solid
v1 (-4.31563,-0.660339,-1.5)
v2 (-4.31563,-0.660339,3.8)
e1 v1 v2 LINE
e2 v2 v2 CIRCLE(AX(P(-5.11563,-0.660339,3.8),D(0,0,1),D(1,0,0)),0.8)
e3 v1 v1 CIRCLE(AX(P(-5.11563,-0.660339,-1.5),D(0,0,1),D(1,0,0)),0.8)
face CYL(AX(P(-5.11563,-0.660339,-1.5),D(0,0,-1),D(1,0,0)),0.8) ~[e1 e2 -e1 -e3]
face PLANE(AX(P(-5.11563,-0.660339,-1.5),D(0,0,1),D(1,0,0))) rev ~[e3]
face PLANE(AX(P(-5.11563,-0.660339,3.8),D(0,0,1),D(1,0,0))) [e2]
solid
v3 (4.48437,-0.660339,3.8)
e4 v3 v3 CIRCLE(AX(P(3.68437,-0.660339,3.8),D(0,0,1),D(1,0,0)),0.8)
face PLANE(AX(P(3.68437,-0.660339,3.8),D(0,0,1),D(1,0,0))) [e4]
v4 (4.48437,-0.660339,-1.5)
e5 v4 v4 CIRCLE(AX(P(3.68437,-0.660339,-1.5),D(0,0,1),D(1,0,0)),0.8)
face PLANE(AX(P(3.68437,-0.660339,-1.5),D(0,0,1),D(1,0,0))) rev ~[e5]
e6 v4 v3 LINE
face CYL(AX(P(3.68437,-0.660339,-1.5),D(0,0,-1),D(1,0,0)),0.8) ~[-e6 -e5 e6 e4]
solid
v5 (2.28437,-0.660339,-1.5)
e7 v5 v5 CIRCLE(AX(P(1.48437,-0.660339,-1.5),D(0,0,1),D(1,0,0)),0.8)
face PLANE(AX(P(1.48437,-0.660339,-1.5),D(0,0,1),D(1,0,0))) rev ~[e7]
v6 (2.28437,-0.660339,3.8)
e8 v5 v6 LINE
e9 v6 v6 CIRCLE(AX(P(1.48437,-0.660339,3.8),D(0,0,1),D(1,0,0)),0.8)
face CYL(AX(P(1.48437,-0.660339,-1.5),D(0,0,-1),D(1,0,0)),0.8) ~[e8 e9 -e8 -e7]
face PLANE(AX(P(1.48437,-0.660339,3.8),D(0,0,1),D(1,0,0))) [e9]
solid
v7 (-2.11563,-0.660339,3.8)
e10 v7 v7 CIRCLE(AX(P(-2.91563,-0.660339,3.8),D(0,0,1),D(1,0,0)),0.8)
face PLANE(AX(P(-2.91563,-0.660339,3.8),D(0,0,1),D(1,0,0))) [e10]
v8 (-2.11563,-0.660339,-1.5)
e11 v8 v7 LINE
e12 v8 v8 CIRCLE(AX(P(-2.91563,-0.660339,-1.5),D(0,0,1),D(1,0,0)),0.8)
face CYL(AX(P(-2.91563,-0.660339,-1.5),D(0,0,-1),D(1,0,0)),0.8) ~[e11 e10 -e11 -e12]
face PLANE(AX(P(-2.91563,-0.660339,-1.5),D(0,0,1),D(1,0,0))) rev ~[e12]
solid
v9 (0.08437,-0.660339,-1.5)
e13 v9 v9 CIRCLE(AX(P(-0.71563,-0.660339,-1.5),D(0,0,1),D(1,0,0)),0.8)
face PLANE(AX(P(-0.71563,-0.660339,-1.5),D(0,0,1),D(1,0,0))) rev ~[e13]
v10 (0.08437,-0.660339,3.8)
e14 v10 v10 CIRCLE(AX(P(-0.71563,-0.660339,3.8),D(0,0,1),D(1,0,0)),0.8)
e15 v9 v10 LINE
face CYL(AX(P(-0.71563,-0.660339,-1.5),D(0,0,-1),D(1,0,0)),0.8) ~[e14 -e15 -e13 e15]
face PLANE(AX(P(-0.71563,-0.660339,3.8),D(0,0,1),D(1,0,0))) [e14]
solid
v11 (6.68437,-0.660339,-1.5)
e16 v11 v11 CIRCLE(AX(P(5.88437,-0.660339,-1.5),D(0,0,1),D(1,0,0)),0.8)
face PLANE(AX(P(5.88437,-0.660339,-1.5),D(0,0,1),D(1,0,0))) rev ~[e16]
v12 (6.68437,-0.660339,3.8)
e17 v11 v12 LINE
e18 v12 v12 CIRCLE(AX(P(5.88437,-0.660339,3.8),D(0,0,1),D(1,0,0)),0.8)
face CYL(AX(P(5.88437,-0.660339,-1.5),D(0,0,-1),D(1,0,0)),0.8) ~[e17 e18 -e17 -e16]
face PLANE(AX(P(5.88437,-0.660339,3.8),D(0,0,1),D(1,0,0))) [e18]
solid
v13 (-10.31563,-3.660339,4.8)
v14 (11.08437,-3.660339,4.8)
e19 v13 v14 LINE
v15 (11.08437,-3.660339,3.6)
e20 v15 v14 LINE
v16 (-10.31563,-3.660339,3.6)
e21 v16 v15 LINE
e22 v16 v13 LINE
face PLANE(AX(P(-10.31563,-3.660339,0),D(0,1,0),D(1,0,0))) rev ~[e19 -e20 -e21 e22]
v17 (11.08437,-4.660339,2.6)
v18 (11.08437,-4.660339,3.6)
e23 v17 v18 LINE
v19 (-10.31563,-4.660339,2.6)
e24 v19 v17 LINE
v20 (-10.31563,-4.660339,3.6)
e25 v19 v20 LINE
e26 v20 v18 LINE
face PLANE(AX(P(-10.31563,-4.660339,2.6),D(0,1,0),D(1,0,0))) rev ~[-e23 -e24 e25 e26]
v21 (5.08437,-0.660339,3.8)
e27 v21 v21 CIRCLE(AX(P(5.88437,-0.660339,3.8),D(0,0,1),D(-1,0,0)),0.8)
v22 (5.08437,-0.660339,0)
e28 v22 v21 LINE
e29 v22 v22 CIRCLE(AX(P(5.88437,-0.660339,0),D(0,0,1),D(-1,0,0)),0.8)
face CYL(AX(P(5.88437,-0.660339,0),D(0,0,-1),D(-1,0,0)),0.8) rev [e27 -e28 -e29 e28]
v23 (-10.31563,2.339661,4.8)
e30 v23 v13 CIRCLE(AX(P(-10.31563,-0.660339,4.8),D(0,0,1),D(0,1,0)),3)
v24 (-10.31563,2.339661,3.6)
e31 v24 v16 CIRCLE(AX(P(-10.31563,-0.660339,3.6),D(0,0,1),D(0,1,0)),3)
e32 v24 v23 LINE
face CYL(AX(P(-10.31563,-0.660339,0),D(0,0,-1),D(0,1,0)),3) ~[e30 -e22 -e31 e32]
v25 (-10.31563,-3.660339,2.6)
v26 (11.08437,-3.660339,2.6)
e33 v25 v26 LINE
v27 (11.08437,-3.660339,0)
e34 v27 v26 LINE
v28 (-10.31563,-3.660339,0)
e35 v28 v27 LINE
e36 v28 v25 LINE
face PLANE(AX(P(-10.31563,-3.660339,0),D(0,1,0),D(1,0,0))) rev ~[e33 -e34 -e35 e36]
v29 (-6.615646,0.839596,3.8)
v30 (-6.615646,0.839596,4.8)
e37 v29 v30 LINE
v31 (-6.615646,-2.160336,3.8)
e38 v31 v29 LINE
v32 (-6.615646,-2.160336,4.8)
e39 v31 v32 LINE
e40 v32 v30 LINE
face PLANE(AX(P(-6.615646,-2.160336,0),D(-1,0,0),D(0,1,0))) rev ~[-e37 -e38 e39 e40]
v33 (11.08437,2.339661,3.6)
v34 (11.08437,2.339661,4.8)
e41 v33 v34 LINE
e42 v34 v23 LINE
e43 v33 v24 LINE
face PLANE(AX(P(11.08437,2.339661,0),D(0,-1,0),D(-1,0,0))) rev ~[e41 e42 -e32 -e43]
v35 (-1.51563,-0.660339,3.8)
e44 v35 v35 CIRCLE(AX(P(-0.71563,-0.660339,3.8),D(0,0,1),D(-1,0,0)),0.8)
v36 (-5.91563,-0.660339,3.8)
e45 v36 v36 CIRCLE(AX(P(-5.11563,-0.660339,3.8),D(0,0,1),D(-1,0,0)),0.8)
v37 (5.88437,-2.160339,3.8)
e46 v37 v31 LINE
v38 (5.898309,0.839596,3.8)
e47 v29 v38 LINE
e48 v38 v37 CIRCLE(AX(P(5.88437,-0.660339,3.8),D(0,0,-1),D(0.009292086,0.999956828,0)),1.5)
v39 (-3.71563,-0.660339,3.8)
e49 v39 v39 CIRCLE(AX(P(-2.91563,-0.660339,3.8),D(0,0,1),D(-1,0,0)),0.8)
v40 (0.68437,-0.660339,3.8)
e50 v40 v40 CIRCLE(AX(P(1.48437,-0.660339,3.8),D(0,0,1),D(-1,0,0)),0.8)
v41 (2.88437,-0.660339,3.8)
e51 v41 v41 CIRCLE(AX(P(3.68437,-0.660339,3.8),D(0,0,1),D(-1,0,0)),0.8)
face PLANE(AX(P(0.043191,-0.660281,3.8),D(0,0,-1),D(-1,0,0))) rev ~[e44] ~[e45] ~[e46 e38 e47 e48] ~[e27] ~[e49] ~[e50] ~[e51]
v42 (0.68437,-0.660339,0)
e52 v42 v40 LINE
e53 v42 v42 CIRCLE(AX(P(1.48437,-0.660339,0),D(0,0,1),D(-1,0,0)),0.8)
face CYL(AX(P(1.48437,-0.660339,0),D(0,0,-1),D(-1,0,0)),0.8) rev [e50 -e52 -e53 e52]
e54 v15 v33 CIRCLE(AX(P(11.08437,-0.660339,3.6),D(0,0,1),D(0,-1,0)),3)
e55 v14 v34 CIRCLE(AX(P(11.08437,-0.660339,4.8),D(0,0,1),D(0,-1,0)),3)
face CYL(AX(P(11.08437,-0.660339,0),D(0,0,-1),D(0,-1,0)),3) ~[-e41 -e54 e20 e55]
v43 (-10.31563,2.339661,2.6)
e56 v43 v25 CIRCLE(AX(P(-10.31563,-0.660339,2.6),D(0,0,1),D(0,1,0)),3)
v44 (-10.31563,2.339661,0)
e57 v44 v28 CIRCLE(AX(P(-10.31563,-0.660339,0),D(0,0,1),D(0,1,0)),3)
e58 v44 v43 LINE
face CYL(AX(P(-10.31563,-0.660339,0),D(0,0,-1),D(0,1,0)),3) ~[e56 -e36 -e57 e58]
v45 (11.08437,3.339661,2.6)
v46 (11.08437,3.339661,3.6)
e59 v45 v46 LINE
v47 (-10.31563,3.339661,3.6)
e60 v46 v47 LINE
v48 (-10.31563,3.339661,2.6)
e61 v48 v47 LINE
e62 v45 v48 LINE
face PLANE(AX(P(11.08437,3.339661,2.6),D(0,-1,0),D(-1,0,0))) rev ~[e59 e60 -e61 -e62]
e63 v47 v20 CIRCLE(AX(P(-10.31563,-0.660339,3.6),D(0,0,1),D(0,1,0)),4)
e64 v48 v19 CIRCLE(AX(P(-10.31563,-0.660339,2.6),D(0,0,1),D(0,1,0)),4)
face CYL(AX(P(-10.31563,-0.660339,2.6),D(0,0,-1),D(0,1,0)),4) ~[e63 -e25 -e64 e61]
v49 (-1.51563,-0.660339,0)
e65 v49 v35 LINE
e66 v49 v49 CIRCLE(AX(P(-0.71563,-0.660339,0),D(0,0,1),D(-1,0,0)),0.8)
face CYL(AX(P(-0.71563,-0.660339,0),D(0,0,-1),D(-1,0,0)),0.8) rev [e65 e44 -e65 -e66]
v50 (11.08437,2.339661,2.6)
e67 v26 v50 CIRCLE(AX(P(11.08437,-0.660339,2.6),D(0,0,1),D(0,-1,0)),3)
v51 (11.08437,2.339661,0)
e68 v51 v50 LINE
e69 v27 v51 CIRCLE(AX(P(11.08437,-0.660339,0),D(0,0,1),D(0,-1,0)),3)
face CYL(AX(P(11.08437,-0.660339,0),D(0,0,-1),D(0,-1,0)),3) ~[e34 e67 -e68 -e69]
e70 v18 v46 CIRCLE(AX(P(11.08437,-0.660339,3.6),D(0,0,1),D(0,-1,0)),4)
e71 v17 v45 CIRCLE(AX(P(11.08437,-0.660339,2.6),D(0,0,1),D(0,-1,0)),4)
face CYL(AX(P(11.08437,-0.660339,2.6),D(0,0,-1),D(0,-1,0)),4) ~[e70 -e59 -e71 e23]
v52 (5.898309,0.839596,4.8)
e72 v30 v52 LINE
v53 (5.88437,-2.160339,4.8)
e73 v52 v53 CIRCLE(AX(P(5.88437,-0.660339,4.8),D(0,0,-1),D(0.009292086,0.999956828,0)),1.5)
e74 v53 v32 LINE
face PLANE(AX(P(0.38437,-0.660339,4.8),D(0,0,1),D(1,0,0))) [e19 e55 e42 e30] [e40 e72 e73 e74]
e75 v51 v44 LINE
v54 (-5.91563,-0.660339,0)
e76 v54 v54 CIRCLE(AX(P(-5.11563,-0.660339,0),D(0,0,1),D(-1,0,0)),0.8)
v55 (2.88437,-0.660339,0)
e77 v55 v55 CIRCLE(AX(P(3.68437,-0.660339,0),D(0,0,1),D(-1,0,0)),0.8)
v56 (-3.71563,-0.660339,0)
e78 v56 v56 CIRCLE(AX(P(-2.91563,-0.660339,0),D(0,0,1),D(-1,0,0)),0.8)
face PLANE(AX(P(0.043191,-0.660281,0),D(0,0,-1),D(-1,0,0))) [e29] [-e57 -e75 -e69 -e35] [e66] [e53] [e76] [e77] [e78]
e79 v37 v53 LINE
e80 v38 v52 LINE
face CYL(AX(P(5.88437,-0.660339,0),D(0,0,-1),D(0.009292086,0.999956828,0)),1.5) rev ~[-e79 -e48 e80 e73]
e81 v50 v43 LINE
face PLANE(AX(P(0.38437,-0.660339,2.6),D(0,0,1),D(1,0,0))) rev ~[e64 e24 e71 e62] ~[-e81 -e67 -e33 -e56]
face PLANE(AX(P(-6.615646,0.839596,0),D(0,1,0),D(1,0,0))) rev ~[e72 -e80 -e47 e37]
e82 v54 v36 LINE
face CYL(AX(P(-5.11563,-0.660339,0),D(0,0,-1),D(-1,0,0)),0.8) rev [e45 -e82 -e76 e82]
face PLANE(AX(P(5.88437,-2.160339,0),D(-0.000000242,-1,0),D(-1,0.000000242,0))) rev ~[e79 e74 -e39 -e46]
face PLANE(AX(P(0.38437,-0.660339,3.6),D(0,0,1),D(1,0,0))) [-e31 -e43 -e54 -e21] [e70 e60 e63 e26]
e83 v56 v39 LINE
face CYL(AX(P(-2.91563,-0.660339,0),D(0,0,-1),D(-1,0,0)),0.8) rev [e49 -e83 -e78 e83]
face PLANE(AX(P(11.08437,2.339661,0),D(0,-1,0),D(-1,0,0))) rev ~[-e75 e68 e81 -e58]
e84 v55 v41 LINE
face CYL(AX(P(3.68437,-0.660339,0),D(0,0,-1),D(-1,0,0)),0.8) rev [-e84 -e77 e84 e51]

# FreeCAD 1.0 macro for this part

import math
import FreeCAD as App
import Part
import Sketcher
Q = App.Units.Quantity

doc = App.newDocument("Part")
body = doc.addObject("PartDesign::Body", "Body")

sketch1 = doc.addObject("Sketcher::SketchObject", "Sketch")
body.addObject(sketch1)
sketch1.AttachmentSupport = (doc.XY_Plane, [""])
sketch1.MapMode = "FlatFace"
sketch1.addGeometry([
    Part.LineSegment(App.Vector(-10.31563, -3.660339, 0), App.Vector(11.08437, -3.660339, 0)),
    Part.ArcOfCircle(Part.Circle(App.Vector(11.08437, -0.660339, 0), App.Vector(0, 0, 1), 3), math.radians(-90), math.radians(90)),
    Part.LineSegment(App.Vector(11.08437, 2.339661, 0), App.Vector(-10.31563, 2.339661, 0)),
    Part.ArcOfCircle(Part.Circle(App.Vector(-10.31563, -0.660339, 0), App.Vector(0, 0, 1), 3), math.radians(90), math.radians(270)),
    Part.LineSegment(App.Vector(-6.615646, -2.160336, 0), App.Vector(-6.615646, 0.839596, 0)),
    Part.LineSegment(App.Vector(-6.615646, 0.839596, 0), App.Vector(5.898309, 0.839596, 0)),
    Part.ArcOfCircle(Part.Circle(App.Vector(5.88437, -0.660339, 0), App.Vector(0, 0, 1), 1.5), math.radians(-90.000014), math.radians(89.467595)),
    Part.LineSegment(App.Vector(5.88437, -2.160339, 0), App.Vector(-6.615646, -2.160336, 0)),
], False)
sketch1.addConstraint([
    Sketcher.Constraint("Tangent", 0, 2, 1, 1),
    Sketcher.Constraint("Tangent", 1, 2, 2, 1),
    Sketcher.Constraint("Tangent", 2, 2, 3, 1),
    Sketcher.Constraint("Tangent", 3, 2, 0, 1),
    Sketcher.Constraint("Coincident", 4, 2, 5, 1),
    Sketcher.Constraint("Coincident", 5, 2, 6, 2),
    Sketcher.Constraint("Tangent", 6, 1, 7, 1),
    Sketcher.Constraint("Coincident", 7, 2, 4, 1),
    Sketcher.Constraint("Horizontal", 0),
    Sketcher.Constraint("Horizontal", 2),
    Sketcher.Constraint("Vertical", 4),
    Sketcher.Constraint("Horizontal", 5),
    Sketcher.Constraint("Horizontal", 3, 3, 6, 3),
    Sketcher.Constraint("Radius", 1, 3.0),
    Sketcher.Constraint("Radius", 6, 1.5),
    Sketcher.Constraint("Angle", 7, Q("179.999986 deg")),
    Sketcher.Constraint("DistanceX", 0, 1, 0, 2, 21.4),
    Sketcher.Constraint("DistanceX", 6, 3, 1, 3, 5.2),
    Sketcher.Constraint("DistanceX", 5, 1, 5, 2, 12.513954),
    Sketcher.Constraint("DistanceY", 4, 1, 4, 2, 2.999932),
    Sketcher.Constraint("DistanceX", -1, 1, 1, 3, 11.08437),
    Sketcher.Constraint("DistanceY", 1, 3, -1, 1, 0.660339),
])
pad1 = doc.addObject("PartDesign::Pad", "Pad")
body.addObject(pad1)
pad1.Profile = sketch1
pad1.Length = 4.8

sketch2 = doc.addObject("Sketcher::SketchObject", "Sketch001")
body.addObject(sketch2)
sketch2.AttachmentSupport = (doc.XY_Plane, [""])
sketch2.MapMode = "FlatFace"
sketch2.addGeometry([
    Part.ArcOfCircle(Part.Circle(App.Vector(5.88437, -0.660339, 0), App.Vector(0, 0, 1), 1.5), math.radians(-90.000014), math.radians(89.467595)),
    Part.LineSegment(App.Vector(5.898309, 0.839596, 0), App.Vector(-6.615646, 0.839596, 0)),
    Part.LineSegment(App.Vector(-6.615646, 0.839596, 0), App.Vector(-6.615646, -2.160336, 0)),
    Part.LineSegment(App.Vector(-6.615646, -2.160336, 0), App.Vector(5.88437, -2.160339, 0)),
    Part.Circle(App.Vector(5.88437, -0.660339, 0), App.Vector(0, 0, 1), 0.8),
    Part.Circle(App.Vector(3.68437, -0.660339, 0), App.Vector(0, 0, 1), 0.8),
    Part.Circle(App.Vector(1.48437, -0.660339, 0), App.Vector(0, 0, 1), 0.8),
    Part.Circle(App.Vector(-0.71563, -0.660339, 0), App.Vector(0, 0, 1), 0.8),
    Part.Circle(App.Vector(-2.91563, -0.660339, 0), App.Vector(0, 0, 1), 0.8),
    Part.Circle(App.Vector(-5.11563, -0.660339, 0), App.Vector(0, 0, 1), 0.8),
], False)
sketch2.addConstraint([
    Sketcher.Constraint("Coincident", 0, 2, 1, 1),
    Sketcher.Constraint("Coincident", 1, 2, 2, 1),
    Sketcher.Constraint("Coincident", 2, 2, 3, 1),
    Sketcher.Constraint("Coincident", 3, 2, 0, 1),
    Sketcher.Constraint("Horizontal", 1),
    Sketcher.Constraint("Vertical", 2),
    Sketcher.Constraint("Coincident", 4, 3, 0, 3),
    Sketcher.Constraint("Diameter", 4, 1.6),
    Sketcher.Constraint("Diameter", 5, 1.6),
    Sketcher.Constraint("Diameter", 6, 1.6),
    Sketcher.Constraint("Diameter", 7, 1.6),
    Sketcher.Constraint("Diameter", 8, 1.6),
    Sketcher.Constraint("Diameter", 9, 1.6),
    Sketcher.Constraint("Radius", 0, 1.5),
    Sketcher.Constraint("DistanceX", 9, 3, 4, 3, 11.0),
    Sketcher.Constraint("DistanceX", 5, 3, 4, 3, 2.2),
    Sketcher.Constraint("DistanceX", 6, 3, 5, 3, 2.2),
    Sketcher.Constraint("DistanceX", 7, 3, 6, 3, 2.2),
    Sketcher.Constraint("DistanceX", 8, 3, 7, 3, 2.2),
    Sketcher.Constraint("DistanceX", 5, 3, 3, 2, 2.2),
    Sketcher.Constraint("DistanceY", 3, 2, 5, 3, 1.5),
    Sketcher.Constraint("DistanceY", 3, 2, 6, 3, 1.5),
    Sketcher.Constraint("DistanceX", 1, 2, 1, 1, 12.513954),
    Sketcher.Constraint("DistanceY", 2, 2, 2, 1, 2.999932),
    Sketcher.Constraint("DistanceX", -1, 1, 0, 3, 5.88437),
    Sketcher.Constraint("DistanceY", 0, 3, -1, 1, 0.660339),
    Sketcher.Constraint("DistanceY", 7, 3, -1, 1, 0.660339),
    Sketcher.Constraint("DistanceY", 8, 3, -1, 1, 0.660339),
    Sketcher.Constraint("DistanceY", 9, 3, -1, 1, 0.660339),
    Sketcher.Constraint("DistanceX", -1, 1, 0, 2, 5.898309),
])
pad2 = doc.addObject("PartDesign::Pad", "Pad001")
body.addObject(pad2)
pad2.Profile = sketch2
pad2.Length = 3.8

sketch3 = doc.addObject("Sketcher::SketchObject", "Sketch002")
body.addObject(sketch3)
sketch3.AttachmentSupport = (doc.XY_Plane, [""])
sketch3.MapMode = "FlatFace"
sketch3.AttachmentOffset = App.Placement(App.Vector(0, 0, 2.6), App.Rotation())
sketch3.addGeometry([
    Part.LineSegment(App.Vector(-10.31563, -4.660339, 0), App.Vector(11.08437, -4.660339, 0)),
    Part.ArcOfCircle(Part.Circle(App.Vector(11.08437, -0.660339, 0), App.Vector(0, 0, 1), 4), math.radians(-90), math.radians(90)),
    Part.LineSegment(App.Vector(11.08437, 3.339661, 0), App.Vector(-10.31563, 3.339661, 0)),
    Part.ArcOfCircle(Part.Circle(App.Vector(-10.31563, -0.660339, 0), App.Vector(0, 0, 1), 4), math.radians(90), math.radians(270)),
    Part.ArcOfCircle(Part.Circle(App.Vector(11.08437, -0.660339, 0), App.Vector(0, 0, 1), 3), math.radians(-90), math.radians(90)),
    Part.LineSegment(App.Vector(11.08437, -3.660339, 0), App.Vector(-10.31563, -3.660339, 0)),
    Part.ArcOfCircle(Part.Circle(App.Vector(-10.31563, -0.660339, 0), App.Vector(0, 0, 1), 3), math.radians(90), math.radians(270)),
    Part.LineSegment(App.Vector(-10.31563, 2.339661, 0), App.Vector(11.08437, 2.339661, 0)),
], False)
sketch3.addConstraint([
    Sketcher.Constraint("Tangent", 0, 2, 1, 1),
    Sketcher.Constraint("Tangent", 1, 2, 2, 1),
    Sketcher.Constraint("Tangent", 2, 2, 3, 1),
    Sketcher.Constraint("Tangent", 3, 2, 0, 1),
    Sketcher.Constraint("Tangent", 4, 1, 5, 1),
    Sketcher.Constraint("Tangent", 5, 2, 6, 2),
    Sketcher.Constraint("Tangent", 6, 1, 7, 1),
    Sketcher.Constraint("Tangent", 7, 2, 4, 2),
    Sketcher.Constraint("Horizontal", 0),
    Sketcher.Constraint("Horizontal", 2),
    Sketcher.Constraint("Horizontal", 5),
    Sketcher.Constraint("Horizontal", 7),
    Sketcher.Constraint("Coincident", 4, 3, 1, 3),
    Sketcher.Constraint("Vertical", 6, 3, 2, 2),
    Sketcher.Constraint("Radius", 1, 4.0),
    Sketcher.Constraint("Radius", 4, 3.0),
    Sketcher.Constraint("DistanceX", 0, 1, 0, 2, 21.4),
    Sketcher.Constraint("DistanceX", -1, 1, 1, 3, 11.08437),
    Sketcher.Constraint("DistanceY", 1, 3, -1, 1, 0.660339),
])
pad3 = doc.addObject("PartDesign::Pad", "Pad002")
body.addObject(pad3)
pad3.Profile = sketch3
pad3.Length = 1
body2 = doc.addObject("PartDesign::Body", "Body001")

sketch4 = doc.addObject("Sketcher::SketchObject", "Sketch003")
body2.addObject(sketch4)
sketch4.AttachmentSupport = (doc.getObject("XY_Plane001"), [""])
sketch4.MapMode = "FlatFace"
sketch4.addGeometry(Part.Circle(App.Vector(5.88437, -0.660339, 0), App.Vector(0, 0, 1), 0.8), False)
sketch4.addConstraint([
    Sketcher.Constraint("Diameter", 0, 1.6),
    Sketcher.Constraint("DistanceX", -1, 1, 0, 3, 5.88437),
    Sketcher.Constraint("DistanceY", 0, 3, -1, 1, 0.660339),
])
pad4 = doc.addObject("PartDesign::Pad", "Pad003")
body2.addObject(pad4)
pad4.Profile = sketch4
pad4.Type = "TwoLengths"
pad4.Length = 3.8
pad4.Length2 = 1.5
body3 = doc.addObject("PartDesign::Body", "Body002")

sketch5 = doc.addObject("Sketcher::SketchObject", "Sketch004")
body3.addObject(sketch5)
sketch5.AttachmentSupport = (doc.getObject("XY_Plane002"), [""])
sketch5.MapMode = "FlatFace"
sketch5.addGeometry(Part.Circle(App.Vector(3.68437, -0.660339, 0), App.Vector(0, 0, 1), 0.8), False)
sketch5.addConstraint([
    Sketcher.Constraint("Diameter", 0, 1.6),
    Sketcher.Constraint("DistanceX", -1, 1, 0, 3, 3.68437),
    Sketcher.Constraint("DistanceY", 0, 3, -1, 1, 0.660339),
])
pad5 = doc.addObject("PartDesign::Pad", "Pad004")
body3.addObject(pad5)
pad5.Profile = sketch5
pad5.Type = "TwoLengths"
pad5.Length = 3.8
pad5.Length2 = 1.5
body4 = doc.addObject("PartDesign::Body", "Body003")

sketch6 = doc.addObject("Sketcher::SketchObject", "Sketch005")
body4.addObject(sketch6)
sketch6.AttachmentSupport = (doc.getObject("XY_Plane003"), [""])
sketch6.MapMode = "FlatFace"
sketch6.addGeometry(Part.Circle(App.Vector(1.48437, -0.660339, 0), App.Vector(0, 0, 1), 0.8), False)
sketch6.addConstraint([
    Sketcher.Constraint("Diameter", 0, 1.6),
    Sketcher.Constraint("DistanceX", -1, 1, 0, 3, 1.48437),
    Sketcher.Constraint("DistanceY", 0, 3, -1, 1, 0.660339),
])
pad6 = doc.addObject("PartDesign::Pad", "Pad005")
body4.addObject(pad6)
pad6.Profile = sketch6
pad6.Type = "TwoLengths"
pad6.Length = 3.8
pad6.Length2 = 1.5
body5 = doc.addObject("PartDesign::Body", "Body004")

sketch7 = doc.addObject("Sketcher::SketchObject", "Sketch006")
body5.addObject(sketch7)
sketch7.AttachmentSupport = (doc.getObject("XY_Plane004"), [""])
sketch7.MapMode = "FlatFace"
sketch7.addGeometry(Part.Circle(App.Vector(-0.71563, -0.660339, 0), App.Vector(0, 0, 1), 0.8), False)
sketch7.addConstraint([
    Sketcher.Constraint("Diameter", 0, 1.6),
    Sketcher.Constraint("DistanceX", 0, 3, -1, 1, 0.71563),
    Sketcher.Constraint("DistanceY", 0, 3, -1, 1, 0.660339),
])
pad7 = doc.addObject("PartDesign::Pad", "Pad006")
body5.addObject(pad7)
pad7.Profile = sketch7
pad7.Type = "TwoLengths"
pad7.Length = 3.8
pad7.Length2 = 1.5
body6 = doc.addObject("PartDesign::Body", "Body005")

sketch8 = doc.addObject("Sketcher::SketchObject", "Sketch007")
body6.addObject(sketch8)
sketch8.AttachmentSupport = (doc.getObject("XY_Plane005"), [""])
sketch8.MapMode = "FlatFace"
sketch8.addGeometry(Part.Circle(App.Vector(-2.91563, -0.660339, 0), App.Vector(0, 0, 1), 0.8), False)
sketch8.addConstraint([
    Sketcher.Constraint("Diameter", 0, 1.6),
    Sketcher.Constraint("DistanceX", 0, 3, -1, 1, 2.91563),
    Sketcher.Constraint("DistanceY", 0, 3, -1, 1, 0.660339),
])
pad8 = doc.addObject("PartDesign::Pad", "Pad007")
body6.addObject(pad8)
pad8.Profile = sketch8
pad8.Type = "TwoLengths"
pad8.Length = 3.8
pad8.Length2 = 1.5
body7 = doc.addObject("PartDesign::Body", "Body006")

sketch9 = doc.addObject("Sketcher::SketchObject", "Sketch008")
body7.addObject(sketch9)
sketch9.AttachmentSupport = (doc.getObject("XY_Plane006"), [""])
sketch9.MapMode = "FlatFace"
sketch9.addGeometry(Part.Circle(App.Vector(-5.11563, -0.660339, 0), App.Vector(0, 0, 1), 0.8), False)
sketch9.addConstraint([
    Sketcher.Constraint("Diameter", 0, 1.6),
    Sketcher.Constraint("DistanceX", 0, 3, -1, 1, 5.11563),
    Sketcher.Constraint("DistanceY", 0, 3, -1, 1, 0.660339),
])
pad9 = doc.addObject("PartDesign::Pad", "Pad008")
body7.addObject(pad9)
pad9.Profile = sketch9
pad9.Type = "TwoLengths"
pad9.Length = 3.8
pad9.Length2 = 1.5

doc.recompute()
